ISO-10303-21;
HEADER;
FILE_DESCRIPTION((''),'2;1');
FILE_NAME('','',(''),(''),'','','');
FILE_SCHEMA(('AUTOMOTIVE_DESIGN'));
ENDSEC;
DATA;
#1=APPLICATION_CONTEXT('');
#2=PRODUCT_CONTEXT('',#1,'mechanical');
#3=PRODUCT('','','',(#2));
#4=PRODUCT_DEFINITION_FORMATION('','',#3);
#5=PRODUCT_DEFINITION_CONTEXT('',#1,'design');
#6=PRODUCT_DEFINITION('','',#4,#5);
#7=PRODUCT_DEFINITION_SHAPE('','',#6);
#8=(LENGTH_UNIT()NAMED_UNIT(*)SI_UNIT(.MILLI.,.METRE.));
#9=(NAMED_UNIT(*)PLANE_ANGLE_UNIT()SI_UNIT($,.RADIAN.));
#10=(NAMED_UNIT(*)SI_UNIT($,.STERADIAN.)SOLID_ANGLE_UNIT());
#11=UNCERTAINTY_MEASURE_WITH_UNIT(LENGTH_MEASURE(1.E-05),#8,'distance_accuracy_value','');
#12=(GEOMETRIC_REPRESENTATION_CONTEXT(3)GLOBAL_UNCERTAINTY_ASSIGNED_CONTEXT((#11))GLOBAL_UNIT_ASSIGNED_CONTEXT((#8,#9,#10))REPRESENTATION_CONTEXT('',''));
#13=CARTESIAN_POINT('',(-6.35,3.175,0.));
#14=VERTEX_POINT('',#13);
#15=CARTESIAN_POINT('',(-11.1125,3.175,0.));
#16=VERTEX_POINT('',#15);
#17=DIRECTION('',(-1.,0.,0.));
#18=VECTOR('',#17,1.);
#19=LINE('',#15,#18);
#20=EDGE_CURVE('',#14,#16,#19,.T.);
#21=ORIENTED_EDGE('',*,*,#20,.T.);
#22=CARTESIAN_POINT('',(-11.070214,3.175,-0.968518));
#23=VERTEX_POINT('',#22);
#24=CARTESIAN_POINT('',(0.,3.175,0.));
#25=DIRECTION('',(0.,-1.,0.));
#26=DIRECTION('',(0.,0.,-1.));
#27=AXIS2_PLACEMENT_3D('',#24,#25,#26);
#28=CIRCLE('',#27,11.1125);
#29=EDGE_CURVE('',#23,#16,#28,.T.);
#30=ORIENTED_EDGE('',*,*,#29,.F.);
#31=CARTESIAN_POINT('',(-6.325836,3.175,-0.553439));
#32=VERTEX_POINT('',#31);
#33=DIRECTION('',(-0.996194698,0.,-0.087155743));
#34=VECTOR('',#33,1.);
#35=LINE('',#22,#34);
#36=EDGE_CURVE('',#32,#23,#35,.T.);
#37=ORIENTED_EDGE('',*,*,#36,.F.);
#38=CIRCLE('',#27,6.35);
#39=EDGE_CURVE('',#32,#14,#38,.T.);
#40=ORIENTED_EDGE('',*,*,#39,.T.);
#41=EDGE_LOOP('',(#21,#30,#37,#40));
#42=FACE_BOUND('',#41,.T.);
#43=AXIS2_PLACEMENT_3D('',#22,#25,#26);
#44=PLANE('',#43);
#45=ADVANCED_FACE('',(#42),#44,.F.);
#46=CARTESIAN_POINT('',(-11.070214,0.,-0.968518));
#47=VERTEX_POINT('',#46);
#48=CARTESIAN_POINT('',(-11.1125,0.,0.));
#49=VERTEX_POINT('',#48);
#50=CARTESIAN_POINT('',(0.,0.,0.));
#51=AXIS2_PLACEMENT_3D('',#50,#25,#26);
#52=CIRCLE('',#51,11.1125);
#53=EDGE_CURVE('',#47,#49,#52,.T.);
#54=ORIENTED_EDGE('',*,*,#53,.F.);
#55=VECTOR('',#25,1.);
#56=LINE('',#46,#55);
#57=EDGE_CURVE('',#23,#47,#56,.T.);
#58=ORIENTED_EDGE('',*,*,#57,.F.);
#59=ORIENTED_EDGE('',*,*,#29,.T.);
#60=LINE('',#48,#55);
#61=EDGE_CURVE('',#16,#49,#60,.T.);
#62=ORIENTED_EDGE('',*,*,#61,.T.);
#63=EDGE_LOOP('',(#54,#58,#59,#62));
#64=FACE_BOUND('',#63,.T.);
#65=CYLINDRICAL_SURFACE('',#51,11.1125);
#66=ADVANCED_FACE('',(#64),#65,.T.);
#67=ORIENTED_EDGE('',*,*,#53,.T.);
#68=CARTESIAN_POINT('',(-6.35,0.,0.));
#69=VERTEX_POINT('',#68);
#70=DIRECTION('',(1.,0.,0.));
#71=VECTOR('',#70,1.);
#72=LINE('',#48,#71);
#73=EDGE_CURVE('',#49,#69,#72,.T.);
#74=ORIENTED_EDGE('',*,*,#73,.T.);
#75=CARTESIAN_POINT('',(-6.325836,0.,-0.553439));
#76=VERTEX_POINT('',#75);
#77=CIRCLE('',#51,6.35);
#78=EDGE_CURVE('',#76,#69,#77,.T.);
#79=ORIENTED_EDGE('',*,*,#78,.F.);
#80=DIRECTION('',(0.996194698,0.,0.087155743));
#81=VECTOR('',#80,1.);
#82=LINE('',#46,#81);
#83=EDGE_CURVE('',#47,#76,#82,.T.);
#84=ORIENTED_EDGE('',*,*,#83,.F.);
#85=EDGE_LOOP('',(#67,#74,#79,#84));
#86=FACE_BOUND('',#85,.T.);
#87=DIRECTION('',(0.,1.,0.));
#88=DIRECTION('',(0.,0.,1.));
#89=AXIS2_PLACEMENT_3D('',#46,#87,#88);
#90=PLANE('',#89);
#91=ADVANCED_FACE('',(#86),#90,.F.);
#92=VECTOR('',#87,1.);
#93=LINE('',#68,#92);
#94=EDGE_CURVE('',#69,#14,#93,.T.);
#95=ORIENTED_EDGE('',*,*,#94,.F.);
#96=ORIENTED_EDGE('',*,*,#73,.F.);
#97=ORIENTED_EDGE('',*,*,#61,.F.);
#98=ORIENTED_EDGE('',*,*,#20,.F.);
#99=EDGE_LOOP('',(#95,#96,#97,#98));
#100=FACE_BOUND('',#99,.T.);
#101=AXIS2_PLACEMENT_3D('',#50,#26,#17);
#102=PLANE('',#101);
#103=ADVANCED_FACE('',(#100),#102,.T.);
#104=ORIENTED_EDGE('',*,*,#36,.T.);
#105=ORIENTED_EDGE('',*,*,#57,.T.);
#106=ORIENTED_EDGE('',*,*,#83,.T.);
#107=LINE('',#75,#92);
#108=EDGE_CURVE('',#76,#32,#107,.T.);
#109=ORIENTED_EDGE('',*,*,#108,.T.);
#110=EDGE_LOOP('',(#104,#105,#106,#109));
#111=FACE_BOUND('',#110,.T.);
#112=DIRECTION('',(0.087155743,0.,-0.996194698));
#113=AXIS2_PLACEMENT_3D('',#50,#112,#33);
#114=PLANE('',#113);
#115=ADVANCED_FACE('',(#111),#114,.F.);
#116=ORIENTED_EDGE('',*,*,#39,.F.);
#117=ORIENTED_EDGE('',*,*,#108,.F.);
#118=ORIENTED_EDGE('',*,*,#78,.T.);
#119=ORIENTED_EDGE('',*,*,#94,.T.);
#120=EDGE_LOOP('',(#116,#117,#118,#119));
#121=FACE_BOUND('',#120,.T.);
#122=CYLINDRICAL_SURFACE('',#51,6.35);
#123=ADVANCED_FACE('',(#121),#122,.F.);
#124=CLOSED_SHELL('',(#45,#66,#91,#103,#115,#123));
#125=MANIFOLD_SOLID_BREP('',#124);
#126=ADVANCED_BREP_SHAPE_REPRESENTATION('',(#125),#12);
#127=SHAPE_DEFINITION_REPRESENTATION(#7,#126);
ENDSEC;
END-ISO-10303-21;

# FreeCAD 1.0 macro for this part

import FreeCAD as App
import Part
import Sketcher
Q = App.Units.Quantity


def add_polygon(sketch, points):
    """Adds a closed chain of lines whose ends are joined by coincident constraints."""
    first, n = sketch.GeometryCount, len(points)
    for a, b in zip(points, points[1:] + points[:1]):
        sketch.addGeometry(Part.LineSegment(App.Vector(*a, 0), App.Vector(*b, 0)), False)
    for i in range(n):
        sketch.addConstraint(Sketcher.Constraint("Coincident", first + i, 2, first + (i + 1) % n, 1))

doc = App.newDocument("Part")
body = doc.addObject("PartDesign::Body", "Body")

sketch1 = doc.addObject("Sketcher::SketchObject", "Sketch")
body.addObject(sketch1)
sketch1.AttachmentSupport = (doc.XY_Plane, [""])
sketch1.MapMode = "FlatFace"
add_polygon(sketch1, [(-11.1, 3.2), (-11.1, 0), (-6.3, 0), (-6.3, 3.2)])
sketch1.addConstraint(Sketcher.Constraint("Vertical", 0))
sketch1.addConstraint(Sketcher.Constraint("Horizontal", 1))
sketch1.addConstraint(Sketcher.Constraint("Vertical", 2))
sketch1.addConstraint(Sketcher.Constraint("Horizontal", 3))
sketch1.addConstraint(Sketcher.Constraint("PointOnObject", 0, 2, -1))
sketch1.addConstraint(Sketcher.Constraint("DistanceX", 1, 1, 1, 2, Q("0.1875 in")))
sketch1.addConstraint(Sketcher.Constraint("DistanceY", 0, 2, 0, 1, Q("0.125 in")))
sketch1.addConstraint(Sketcher.Constraint("DistanceX", 1, 2, -1, 1, Q("0.25 in")))
revolution = doc.addObject("PartDesign::Revolution", "Revolution")
body.addObject(revolution)
revolution.Profile = sketch1
revolution.ReferenceAxis = (sketch1, ["V_Axis"])
revolution.Angle = 355

doc.recompute()
